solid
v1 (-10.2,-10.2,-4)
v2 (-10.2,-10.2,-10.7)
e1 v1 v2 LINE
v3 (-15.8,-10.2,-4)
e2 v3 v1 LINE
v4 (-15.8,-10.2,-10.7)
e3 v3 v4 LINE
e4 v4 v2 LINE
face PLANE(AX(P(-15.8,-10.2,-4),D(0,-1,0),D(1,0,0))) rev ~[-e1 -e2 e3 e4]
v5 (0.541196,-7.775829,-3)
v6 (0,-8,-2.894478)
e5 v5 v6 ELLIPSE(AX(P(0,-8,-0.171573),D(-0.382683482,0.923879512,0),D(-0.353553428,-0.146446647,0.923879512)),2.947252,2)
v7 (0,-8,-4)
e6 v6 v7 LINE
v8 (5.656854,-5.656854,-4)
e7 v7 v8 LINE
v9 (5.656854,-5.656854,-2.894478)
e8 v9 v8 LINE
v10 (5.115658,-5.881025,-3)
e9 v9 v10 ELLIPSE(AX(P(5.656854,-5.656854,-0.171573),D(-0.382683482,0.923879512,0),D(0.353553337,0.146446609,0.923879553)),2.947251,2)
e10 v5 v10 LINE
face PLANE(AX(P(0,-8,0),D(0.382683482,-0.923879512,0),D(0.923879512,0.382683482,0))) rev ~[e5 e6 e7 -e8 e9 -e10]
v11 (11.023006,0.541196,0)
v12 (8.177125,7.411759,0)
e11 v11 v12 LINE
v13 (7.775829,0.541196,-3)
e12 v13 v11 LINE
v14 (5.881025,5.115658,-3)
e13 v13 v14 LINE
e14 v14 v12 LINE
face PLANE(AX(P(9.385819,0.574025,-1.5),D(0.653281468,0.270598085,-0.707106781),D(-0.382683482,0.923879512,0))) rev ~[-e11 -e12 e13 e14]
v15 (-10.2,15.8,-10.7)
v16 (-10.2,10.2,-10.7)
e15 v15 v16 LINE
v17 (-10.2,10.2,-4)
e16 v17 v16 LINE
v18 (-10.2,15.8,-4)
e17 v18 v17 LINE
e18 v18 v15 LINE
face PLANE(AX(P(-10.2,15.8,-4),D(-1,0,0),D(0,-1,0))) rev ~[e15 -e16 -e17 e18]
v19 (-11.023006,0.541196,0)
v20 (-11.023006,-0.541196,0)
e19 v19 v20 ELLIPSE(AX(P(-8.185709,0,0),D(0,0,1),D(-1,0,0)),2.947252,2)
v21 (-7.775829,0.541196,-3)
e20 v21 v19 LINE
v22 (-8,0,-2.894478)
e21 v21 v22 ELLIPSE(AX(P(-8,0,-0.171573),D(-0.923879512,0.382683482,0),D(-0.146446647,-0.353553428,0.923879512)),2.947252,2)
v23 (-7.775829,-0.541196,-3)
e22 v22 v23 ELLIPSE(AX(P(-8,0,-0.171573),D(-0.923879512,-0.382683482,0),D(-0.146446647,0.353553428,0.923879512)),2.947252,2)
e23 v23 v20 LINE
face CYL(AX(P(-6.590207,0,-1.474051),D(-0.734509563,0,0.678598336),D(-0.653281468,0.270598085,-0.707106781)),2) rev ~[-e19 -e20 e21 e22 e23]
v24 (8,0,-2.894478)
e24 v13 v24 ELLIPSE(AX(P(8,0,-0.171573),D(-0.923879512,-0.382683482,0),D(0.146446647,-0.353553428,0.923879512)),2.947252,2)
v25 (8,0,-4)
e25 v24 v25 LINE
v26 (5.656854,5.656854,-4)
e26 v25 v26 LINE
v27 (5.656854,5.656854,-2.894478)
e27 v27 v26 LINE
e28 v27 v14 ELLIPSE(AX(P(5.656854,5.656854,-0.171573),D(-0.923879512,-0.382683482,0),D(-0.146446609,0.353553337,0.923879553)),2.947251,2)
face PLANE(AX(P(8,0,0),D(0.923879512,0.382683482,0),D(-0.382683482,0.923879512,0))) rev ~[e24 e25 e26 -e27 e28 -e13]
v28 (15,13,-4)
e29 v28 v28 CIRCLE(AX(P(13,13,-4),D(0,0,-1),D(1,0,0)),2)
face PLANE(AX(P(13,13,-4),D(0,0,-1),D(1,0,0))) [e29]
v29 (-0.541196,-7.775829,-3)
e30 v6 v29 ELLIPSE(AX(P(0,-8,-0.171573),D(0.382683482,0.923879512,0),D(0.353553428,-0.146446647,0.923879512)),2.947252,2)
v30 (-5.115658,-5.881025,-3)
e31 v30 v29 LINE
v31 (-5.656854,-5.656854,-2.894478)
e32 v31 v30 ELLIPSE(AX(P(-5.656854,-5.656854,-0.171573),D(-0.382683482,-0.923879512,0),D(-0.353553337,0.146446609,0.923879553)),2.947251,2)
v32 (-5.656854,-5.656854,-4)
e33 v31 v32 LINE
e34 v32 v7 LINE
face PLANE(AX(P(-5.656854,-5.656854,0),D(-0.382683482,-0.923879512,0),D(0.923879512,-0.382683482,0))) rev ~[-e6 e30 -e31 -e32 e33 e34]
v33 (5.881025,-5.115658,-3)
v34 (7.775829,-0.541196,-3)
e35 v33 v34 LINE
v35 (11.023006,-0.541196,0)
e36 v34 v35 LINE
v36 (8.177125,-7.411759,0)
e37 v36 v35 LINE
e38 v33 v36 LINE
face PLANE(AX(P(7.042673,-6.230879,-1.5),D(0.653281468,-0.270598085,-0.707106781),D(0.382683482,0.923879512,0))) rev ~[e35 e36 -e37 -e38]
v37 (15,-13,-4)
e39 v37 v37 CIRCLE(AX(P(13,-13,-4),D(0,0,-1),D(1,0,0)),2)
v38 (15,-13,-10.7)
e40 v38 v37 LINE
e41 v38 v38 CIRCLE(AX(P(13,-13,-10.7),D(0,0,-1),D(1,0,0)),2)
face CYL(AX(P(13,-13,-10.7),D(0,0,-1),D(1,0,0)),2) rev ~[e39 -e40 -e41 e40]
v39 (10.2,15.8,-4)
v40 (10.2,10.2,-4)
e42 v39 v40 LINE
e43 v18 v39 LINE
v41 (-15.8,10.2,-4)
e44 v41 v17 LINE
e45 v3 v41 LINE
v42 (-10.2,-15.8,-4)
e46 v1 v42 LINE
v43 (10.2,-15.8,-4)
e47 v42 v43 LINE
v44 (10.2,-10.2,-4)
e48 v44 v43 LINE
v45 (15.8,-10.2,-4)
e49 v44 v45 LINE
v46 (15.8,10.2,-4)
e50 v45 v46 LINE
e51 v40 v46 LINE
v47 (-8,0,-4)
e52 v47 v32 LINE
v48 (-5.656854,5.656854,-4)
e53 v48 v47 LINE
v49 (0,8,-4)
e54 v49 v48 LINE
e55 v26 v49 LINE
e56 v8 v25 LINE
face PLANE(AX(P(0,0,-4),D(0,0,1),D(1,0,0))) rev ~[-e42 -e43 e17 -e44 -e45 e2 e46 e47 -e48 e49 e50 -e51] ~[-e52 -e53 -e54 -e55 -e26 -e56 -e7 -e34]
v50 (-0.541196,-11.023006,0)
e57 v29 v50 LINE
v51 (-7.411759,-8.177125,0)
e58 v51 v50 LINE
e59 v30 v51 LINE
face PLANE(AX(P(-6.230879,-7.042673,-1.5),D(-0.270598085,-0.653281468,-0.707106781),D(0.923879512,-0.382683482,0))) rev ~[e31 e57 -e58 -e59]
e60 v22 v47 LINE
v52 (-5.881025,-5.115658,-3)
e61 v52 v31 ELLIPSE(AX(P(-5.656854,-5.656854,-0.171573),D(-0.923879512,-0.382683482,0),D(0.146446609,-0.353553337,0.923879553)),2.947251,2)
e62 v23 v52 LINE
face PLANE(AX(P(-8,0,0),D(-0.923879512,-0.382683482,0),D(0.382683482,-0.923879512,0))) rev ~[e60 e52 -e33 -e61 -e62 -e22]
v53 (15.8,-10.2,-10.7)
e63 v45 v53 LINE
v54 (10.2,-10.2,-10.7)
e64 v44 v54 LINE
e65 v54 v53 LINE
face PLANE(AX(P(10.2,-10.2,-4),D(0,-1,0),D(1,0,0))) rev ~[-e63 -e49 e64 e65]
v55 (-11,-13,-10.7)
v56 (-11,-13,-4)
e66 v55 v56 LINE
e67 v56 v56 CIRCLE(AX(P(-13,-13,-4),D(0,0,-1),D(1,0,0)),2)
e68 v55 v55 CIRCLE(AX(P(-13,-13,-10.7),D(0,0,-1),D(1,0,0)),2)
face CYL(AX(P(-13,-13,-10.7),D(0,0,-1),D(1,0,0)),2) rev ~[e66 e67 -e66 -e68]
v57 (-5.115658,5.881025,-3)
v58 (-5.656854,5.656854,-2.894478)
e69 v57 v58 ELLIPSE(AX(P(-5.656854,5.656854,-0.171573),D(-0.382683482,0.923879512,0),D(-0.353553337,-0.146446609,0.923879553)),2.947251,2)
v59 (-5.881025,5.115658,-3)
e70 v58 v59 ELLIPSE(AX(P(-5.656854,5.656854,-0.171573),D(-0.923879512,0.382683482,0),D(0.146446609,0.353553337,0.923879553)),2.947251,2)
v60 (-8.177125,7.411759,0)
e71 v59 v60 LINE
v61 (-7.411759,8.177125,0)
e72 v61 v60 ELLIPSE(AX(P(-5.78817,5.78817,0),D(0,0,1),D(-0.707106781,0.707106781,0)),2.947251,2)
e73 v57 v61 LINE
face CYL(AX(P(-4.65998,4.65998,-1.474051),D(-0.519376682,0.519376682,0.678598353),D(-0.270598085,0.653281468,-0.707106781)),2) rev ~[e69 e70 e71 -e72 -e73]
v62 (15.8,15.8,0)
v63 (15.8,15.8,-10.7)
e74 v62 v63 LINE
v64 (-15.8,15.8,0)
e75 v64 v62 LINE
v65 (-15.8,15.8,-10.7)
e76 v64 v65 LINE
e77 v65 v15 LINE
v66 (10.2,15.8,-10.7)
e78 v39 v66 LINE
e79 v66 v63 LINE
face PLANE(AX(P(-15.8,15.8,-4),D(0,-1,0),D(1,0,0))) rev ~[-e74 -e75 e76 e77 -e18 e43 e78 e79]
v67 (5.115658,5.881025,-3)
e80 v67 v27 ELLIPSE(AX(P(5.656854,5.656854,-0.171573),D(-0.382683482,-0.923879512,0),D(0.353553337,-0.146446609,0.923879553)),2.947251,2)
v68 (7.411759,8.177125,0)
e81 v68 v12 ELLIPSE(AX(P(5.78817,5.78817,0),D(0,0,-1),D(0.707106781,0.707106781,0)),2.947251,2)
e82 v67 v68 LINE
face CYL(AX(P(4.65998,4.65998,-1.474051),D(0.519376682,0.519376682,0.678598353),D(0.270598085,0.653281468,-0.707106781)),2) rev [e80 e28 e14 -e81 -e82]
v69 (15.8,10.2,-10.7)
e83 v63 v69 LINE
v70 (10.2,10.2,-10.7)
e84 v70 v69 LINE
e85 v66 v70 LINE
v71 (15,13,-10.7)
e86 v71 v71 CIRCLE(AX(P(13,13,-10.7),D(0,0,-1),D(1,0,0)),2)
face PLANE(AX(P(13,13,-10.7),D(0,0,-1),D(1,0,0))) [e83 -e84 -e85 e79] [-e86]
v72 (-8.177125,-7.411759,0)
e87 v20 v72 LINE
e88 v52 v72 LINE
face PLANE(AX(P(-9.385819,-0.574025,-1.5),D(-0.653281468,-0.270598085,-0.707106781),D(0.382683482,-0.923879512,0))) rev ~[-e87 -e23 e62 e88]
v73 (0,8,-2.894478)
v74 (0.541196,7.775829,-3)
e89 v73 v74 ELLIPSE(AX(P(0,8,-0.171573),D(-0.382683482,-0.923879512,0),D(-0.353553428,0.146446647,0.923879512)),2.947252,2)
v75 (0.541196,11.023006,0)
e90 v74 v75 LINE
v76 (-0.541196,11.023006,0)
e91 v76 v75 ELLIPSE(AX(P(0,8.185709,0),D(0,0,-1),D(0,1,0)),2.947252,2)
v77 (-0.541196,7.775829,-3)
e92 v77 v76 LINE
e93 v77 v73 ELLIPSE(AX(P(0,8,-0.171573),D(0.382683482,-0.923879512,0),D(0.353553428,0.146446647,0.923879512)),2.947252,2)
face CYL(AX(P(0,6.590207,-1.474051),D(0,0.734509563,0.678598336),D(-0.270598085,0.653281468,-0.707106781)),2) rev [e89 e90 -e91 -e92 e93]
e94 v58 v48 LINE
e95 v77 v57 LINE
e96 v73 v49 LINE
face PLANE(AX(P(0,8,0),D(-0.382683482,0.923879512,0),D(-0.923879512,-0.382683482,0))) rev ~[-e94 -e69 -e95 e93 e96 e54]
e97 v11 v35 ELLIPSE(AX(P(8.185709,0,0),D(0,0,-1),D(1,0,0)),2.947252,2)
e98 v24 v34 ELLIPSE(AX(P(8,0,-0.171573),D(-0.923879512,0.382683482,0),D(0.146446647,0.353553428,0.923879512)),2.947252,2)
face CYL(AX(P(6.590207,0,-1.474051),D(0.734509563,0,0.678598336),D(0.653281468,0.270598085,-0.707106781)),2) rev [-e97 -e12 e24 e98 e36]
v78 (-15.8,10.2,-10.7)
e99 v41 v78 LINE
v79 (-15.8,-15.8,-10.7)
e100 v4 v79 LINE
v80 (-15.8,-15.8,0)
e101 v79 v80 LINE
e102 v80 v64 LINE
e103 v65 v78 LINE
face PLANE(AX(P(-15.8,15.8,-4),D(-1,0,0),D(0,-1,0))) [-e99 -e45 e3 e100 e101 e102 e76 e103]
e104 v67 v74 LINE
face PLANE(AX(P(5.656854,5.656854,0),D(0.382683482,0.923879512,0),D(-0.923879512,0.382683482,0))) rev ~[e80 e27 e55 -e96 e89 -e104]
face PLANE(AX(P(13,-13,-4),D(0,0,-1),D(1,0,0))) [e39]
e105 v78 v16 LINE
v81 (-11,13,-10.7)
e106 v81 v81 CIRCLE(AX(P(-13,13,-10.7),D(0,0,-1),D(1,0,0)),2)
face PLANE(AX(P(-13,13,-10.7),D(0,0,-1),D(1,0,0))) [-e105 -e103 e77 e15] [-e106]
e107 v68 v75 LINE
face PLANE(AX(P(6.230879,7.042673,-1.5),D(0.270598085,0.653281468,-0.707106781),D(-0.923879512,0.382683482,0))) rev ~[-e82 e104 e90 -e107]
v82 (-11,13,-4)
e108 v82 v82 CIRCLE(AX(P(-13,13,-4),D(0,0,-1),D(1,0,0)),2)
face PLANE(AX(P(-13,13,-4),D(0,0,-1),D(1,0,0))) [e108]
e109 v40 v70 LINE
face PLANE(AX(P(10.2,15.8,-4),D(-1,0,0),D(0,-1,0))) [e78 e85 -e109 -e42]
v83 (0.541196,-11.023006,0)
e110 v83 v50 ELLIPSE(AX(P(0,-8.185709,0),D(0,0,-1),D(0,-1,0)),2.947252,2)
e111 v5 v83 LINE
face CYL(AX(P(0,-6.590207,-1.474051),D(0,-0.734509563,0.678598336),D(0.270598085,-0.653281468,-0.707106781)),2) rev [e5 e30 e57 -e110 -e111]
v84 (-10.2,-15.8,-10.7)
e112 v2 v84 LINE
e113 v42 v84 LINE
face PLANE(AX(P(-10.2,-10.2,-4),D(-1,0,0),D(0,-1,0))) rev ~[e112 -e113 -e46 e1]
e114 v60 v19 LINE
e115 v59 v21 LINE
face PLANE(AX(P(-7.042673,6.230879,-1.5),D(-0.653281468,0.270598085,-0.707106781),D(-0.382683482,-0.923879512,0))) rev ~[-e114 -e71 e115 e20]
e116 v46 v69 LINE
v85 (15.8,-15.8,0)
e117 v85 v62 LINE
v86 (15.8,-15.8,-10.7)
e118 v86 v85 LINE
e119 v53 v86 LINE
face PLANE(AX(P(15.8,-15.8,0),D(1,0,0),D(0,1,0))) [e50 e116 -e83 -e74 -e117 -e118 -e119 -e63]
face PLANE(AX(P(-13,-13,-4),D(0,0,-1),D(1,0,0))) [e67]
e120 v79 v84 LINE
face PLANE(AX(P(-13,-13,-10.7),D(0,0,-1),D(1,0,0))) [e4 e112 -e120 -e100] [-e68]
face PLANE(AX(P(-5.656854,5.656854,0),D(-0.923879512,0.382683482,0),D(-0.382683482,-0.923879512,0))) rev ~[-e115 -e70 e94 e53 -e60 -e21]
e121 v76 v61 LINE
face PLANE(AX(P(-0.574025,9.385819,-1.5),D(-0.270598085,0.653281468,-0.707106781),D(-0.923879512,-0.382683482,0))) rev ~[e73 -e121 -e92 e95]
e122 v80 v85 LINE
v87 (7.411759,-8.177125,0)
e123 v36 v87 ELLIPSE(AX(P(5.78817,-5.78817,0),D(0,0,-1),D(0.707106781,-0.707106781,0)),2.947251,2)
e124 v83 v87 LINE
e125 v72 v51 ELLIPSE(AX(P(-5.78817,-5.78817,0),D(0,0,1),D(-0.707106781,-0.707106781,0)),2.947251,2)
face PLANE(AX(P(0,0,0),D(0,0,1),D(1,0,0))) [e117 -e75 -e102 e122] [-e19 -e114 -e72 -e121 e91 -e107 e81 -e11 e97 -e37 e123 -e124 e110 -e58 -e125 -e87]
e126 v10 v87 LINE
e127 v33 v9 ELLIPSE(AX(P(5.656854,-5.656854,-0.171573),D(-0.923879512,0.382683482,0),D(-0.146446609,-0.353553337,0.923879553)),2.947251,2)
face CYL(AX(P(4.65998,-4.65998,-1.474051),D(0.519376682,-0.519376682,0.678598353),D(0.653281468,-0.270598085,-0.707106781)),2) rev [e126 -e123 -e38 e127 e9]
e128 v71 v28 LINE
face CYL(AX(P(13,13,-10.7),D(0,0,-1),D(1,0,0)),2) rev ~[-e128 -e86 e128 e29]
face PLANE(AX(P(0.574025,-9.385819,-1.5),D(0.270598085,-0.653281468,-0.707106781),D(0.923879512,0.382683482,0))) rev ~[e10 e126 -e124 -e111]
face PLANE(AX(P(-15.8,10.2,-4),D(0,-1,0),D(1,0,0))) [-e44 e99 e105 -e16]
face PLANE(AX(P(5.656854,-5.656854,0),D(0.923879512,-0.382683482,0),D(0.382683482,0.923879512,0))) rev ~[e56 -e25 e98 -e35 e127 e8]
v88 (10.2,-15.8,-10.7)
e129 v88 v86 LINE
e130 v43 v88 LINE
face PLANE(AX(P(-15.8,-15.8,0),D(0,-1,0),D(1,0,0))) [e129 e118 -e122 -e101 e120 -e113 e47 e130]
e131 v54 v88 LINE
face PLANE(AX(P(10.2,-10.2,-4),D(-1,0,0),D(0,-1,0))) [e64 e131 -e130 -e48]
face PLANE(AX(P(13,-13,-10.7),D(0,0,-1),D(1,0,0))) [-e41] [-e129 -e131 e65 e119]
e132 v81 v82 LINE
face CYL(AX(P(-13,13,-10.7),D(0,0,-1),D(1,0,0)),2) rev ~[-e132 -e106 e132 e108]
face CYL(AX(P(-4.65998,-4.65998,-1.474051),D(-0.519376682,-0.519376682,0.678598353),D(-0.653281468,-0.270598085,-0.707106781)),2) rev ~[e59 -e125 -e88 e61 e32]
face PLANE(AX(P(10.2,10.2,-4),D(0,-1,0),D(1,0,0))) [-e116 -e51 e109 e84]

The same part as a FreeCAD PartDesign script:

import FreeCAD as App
import Part
import Sketcher
from FreeCAD import Vector
Q = App.Units.Quantity


def edges_at(feature, points):
    """Names of the edges that pass closest to the given points."""
    edges = feature.Shape.Edges
    near = lambda p: min(range(len(edges)), key=lambda i: edges[i].distToShape(Part.Vertex(*p))[0])
    return sorted({f"Edge{near(p) + 1}" for p in points})


def add_polygon(sketch, points):
    """Adds a closed chain of lines whose ends are joined by coincident constraints."""
    first, n = sketch.GeometryCount, len(points)
    for a, b in zip(points, points[1:] + points[:1]):
        sketch.addGeometry(Part.LineSegment(App.Vector(*a, 0), App.Vector(*b, 0)), False)
    for i in range(n):
        sketch.addConstraint(Sketcher.Constraint("Coincident", first + i, 2, first + (i + 1) % n, 1))

doc = App.newDocument("Part")
body = doc.addObject("PartDesign::Body", "Body")

# Sketch on XY plane
sketch1 = body.newObject("Sketcher::SketchObject", "Sketch")
sketch1.AttachmentSupport = (doc.getObject("XY_Plane"), [""])
sketch1.MapMode = "FlatFace"
add_polygon(sketch1, [(-16, 16), (-16, -16), (16, -16), (16, 16)])  # lines 0-3
add_polygon(sketch1, [(-6, 6), (0, 8), (6, 6), (8, 0), (6, -6), (0, -8), (-6, -6), (-8, 0)])  # lines 4-11
sketch1.addConstraint([
    Sketcher.Constraint("Vertical", 0),
    Sketcher.Constraint("Horizontal", 1),
    Sketcher.Constraint("Vertical", 2),
    Sketcher.Constraint("Horizontal", 3),
    Sketcher.Constraint("Symmetric", 0, 2, 2, 2, -1, 1),
    Sketcher.Constraint("Symmetric", 4, 2, 8, 2, -1, 1),
    Sketcher.Constraint("Symmetric", 5, 2, 9, 2, -1, 1),
    Sketcher.Constraint("Symmetric", 6, 2, 10, 2, -1, 1),
    Sketcher.Constraint("Symmetric", 7, 2, 11, 2, -1, 1),
    Sketcher.Constraint("Symmetric", 7, 2, 9, 2, -2),
    Sketcher.Constraint("PointOnObject", 4, 2, -2),
    Sketcher.Constraint("PointOnObject", 6, 2, -1),
    Sketcher.Constraint("Perpendicular", 4, 6),
    Sketcher.Constraint("Equal", 3, 0),
    Sketcher.Constraint("Equal", 5, 6),
    Sketcher.Constraint("DistanceX", 1, 1, 1, 2, Q("31.6 mm")),
    Sketcher.Constraint("DistanceY", -1, 1, 4, 2, Q("8 mm")),
    Sketcher.Constraint("Angle", 4, Q("22.500003 deg")),
])
pad1 = body.newObject("PartDesign::Pad", "Pad")
pad1.Profile = sketch1
pad1.Length = 4
pad1.Reversed = True
doc.recompute()

chamfer = body.newObject("PartDesign::Chamfer", "Chamfer")
chamfer.Base = (pad1, edges_at(pad1, [
    (2.828, 6.828, 0),
    (6.828, 2.828, 0),
    (6.828, -2.828, 0),
    (2.828, -6.828, 0),
    (-2.828, -6.828, 0),
    (-6.828, -2.828, 0),
    (-6.828, 2.828, 0),
    (-2.828, 6.828, 0),
]))
chamfer.Size = 3
doc.recompute()

fillet = body.newObject("PartDesign::Fillet", "Fillet")
fillet.Base = (chamfer, edges_at(chamfer, [
    (-6.805, 6.805, -1.5),
    (0, 9.624, -1.5),
    (6.805, 6.805, -1.5),
    (9.624, 0, -1.5),
    (-6.805, -6.805, -1.5),
    (-9.624, 0, -1.5),
    (0, -9.624, -1.5),
    (6.805, -6.805, -1.5),
]))
fillet.Radius = 2

# Sketch on XY plane
sketch2 = body.newObject("Sketcher::SketchObject", "Sketch001")
sketch2.AttachmentSupport = (doc.getObject("XY_Plane"), [""])
sketch2.MapMode = "FlatFace"
sketch2.AttachmentOffset = App.Placement(Vector(0, 0, -4), App.Rotation())
add_polygon(sketch2, [(-16, 10), (-16, 16), (-10, 16), (-10, 10)])  # lines 0-3
add_polygon(sketch2, [(10, 10), (10, 16), (16, 16), (16, 10)])  # lines 4-7
add_polygon(sketch2, [(10, -16), (10, -10), (16, -10), (16, -16)])  # lines 8-11
add_polygon(sketch2, [(-16, -16), (-16, -10), (-10, -10), (-10, -16)])  # lines 12-15
sketch2.addConstraint([
    Sketcher.Constraint("Vertical", 0),
    Sketcher.Constraint("Horizontal", 1),
    Sketcher.Constraint("Vertical", 2),
    Sketcher.Constraint("Horizontal", 3),
    Sketcher.Constraint("Vertical", 4),
    Sketcher.Constraint("Horizontal", 5),
    Sketcher.Constraint("Vertical", 6),
    Sketcher.Constraint("Horizontal", 7),
    Sketcher.Constraint("Vertical", 8),
    Sketcher.Constraint("Horizontal", 9),
    Sketcher.Constraint("Vertical", 10),
    Sketcher.Constraint("Horizontal", 11),
    Sketcher.Constraint("Vertical", 12),
    Sketcher.Constraint("Horizontal", 13),
    Sketcher.Constraint("Vertical", 14),
    Sketcher.Constraint("Horizontal", 15),
    Sketcher.Constraint("Symmetric", 2, 2, 8, 2, -1, 1),
    Sketcher.Constraint("Symmetric", 0, 2, 10, 2, -1, 1),
    Sketcher.Constraint("Symmetric", 6, 2, 12, 2, -1, 1),
    Sketcher.Constraint("Symmetric", 4, 2, 14, 2, -1, 1),
    Sketcher.Constraint("Symmetric", 1, 2, 4, 2, -2),
    Sketcher.Constraint("Symmetric", 3, 2, 6, 2, -2),
    Sketcher.Constraint("Equal", 15, 0),
    Sketcher.Constraint("DistanceX", 1, 1, 1, 2, Q("5.6 mm")),
    Sketcher.Constraint("DistanceX", 0, 2, 4, 2, Q("26 mm")),
    Sketcher.Constraint("DistanceY", 8, 2, 4, 2, Q("26 mm")),
])
pad2 = body.newObject("PartDesign::Pad", "Pad001")
pad2.Profile = sketch2
pad2.Length = 6.7
pad2.Reversed = True

# Sketch on XY plane
sketch3 = body.newObject("Sketcher::SketchObject", "Sketch002")
sketch3.AttachmentSupport = (doc.getObject("XY_Plane"), [""])
sketch3.MapMode = "FlatFace"
sketch3.AttachmentOffset = App.Placement(Vector(0, 0, -10.7), App.Rotation())
sketch3.addGeometry([
    Part.Circle(Vector(-13, -13, 0), Vector(0, 0, 1), 2),
    Part.Circle(Vector(13, -13, 0), Vector(0, 0, 1), 2),
    Part.Circle(Vector(13, 13, 0), Vector(0, 0, 1), 2),
    Part.Circle(Vector(-13, 13, 0), Vector(0, 0, 1), 2),
], False)
sketch3.addConstraint([
    Sketcher.Constraint("Equal", 0, 1),
    Sketcher.Constraint("Equal", 1, 2),
    Sketcher.Constraint("Equal", 2, 3),
    Sketcher.Constraint("Symmetric", 0, 3, 2, 3, -1, 1),
    Sketcher.Constraint("Symmetric", 1, 3, 3, 3, -1, 1),
    Sketcher.Constraint("Symmetric", 0, 3, 1, 3, -2),
    Sketcher.Constraint("Diameter", 0, Q("4 mm")),
    Sketcher.Constraint("DistanceX", 0, 3, -1, 1, Q("13 mm")),
    Sketcher.Constraint("DistanceY", 0, 3, -1, 1, Q("13 mm")),
])
pocket1 = body.newObject("PartDesign::Pocket", "Pocket")
pocket1.Profile = sketch3
pocket1.Length = 6.7
pocket1.Reversed = True

doc.recompute()
